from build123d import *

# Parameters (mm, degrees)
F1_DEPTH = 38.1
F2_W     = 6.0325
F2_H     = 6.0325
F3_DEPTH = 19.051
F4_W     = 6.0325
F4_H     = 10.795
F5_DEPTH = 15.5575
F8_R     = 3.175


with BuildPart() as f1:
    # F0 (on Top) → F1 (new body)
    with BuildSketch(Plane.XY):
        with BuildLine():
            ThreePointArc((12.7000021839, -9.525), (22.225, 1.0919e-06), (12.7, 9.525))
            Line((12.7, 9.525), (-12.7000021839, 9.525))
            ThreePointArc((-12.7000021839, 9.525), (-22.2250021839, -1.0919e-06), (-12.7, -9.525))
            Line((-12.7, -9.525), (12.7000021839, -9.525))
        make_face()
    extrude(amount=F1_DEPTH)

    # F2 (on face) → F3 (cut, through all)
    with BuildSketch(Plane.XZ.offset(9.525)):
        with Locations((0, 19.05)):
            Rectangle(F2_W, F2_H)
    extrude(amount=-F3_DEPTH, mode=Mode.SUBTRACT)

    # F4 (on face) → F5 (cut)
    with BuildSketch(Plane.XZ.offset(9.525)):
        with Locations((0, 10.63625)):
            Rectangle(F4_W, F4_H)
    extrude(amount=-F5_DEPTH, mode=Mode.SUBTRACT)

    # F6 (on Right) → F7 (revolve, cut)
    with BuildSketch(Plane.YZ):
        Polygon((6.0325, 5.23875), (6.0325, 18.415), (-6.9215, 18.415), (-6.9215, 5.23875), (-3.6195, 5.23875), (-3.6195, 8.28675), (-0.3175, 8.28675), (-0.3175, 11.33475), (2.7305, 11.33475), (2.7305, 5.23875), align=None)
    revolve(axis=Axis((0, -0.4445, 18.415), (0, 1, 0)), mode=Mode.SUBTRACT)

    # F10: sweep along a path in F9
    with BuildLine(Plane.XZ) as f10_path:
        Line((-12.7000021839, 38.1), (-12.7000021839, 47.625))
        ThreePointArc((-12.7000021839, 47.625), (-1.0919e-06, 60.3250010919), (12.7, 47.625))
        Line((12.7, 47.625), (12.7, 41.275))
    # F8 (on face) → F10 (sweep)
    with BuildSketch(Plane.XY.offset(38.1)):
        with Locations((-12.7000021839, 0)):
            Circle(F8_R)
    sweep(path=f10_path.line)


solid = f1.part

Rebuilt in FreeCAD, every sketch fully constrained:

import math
import FreeCAD as App
import Part
import Sketcher

V = App.Vector
Q = App.Units.Quantity


def add_polygon(sketch, points):
    """Adds a closed chain of lines whose ends are joined by coincident constraints."""
    first, n = sketch.GeometryCount, len(points)
    for a, b in zip(points, points[1:] + points[:1]):
        sketch.addGeometry(Part.LineSegment(App.Vector(*a, 0), App.Vector(*b, 0)), False)
    for i in range(n):
        sketch.addConstraint(Sketcher.Constraint("Coincident", first + i, 2, first + (i + 1) % n, 1))

doc = App.newDocument("Part")
body = doc.addObject("PartDesign::Body", "Body")

# Sketch on XY plane
sketch1 = body.newObject("Sketcher::SketchObject", "Sketch")
sketch1.AttachmentSupport = (doc.getObject("XY_Plane"), [""])
sketch1.MapMode = "FlatFace"
sketch1.addGeometry(Part.ArcOfCircle(Part.Circle(V(13, 0, 0), V(0, 0, 1), 10), math.radians(-90), math.radians(90)), False)
sketch1.addGeometry(Part.LineSegment(V(13, 10, 0), V(-13, 10, 0)), False)
sketch1.addGeometry(Part.ArcOfCircle(Part.Circle(V(-13, 0, 0), V(0, 0, 1), 10), math.radians(90), math.radians(270)), False)
sketch1.addGeometry(Part.LineSegment(V(-13, -10, 0), V(13, -10, 0)), False)
sketch1.addConstraint(Sketcher.Constraint("Tangent", 0, 2, 1, 1))
sketch1.addConstraint(Sketcher.Constraint("Tangent", 1, 2, 2, 1))
sketch1.addConstraint(Sketcher.Constraint("Tangent", 2, 2, 3, 1))
sketch1.addConstraint(Sketcher.Constraint("Tangent", 3, 2, 0, 1))
sketch1.addConstraint(Sketcher.Constraint("Horizontal", 1))
sketch1.addConstraint(Sketcher.Constraint("Horizontal", 3))
sketch1.addConstraint(Sketcher.Constraint("Symmetric", 0, 3, 2, 3, -1, 1))
sketch1.addConstraint(Sketcher.Constraint("DistanceX", 1, 2, 1, 1, Q("1.0000001 in")))
sketch1.addConstraint(Sketcher.Constraint("Radius", 0, Q("0.375 in")))
pad1 = body.newObject("PartDesign::Pad", "Pad")
pad1.Profile = sketch1
pad1.Length = Q("1.5 in")

# Sketch on XZ plane
sketch2 = body.newObject("Sketcher::SketchObject", "Sketch001")
sketch2.AttachmentSupport = (doc.getObject("XZ_Plane"), [""])
sketch2.MapMode = "FlatFace"
sketch2.AttachmentOffset = App.Placement(V(0, 0, 0.375 * 25.4), App.Rotation())
add_polygon(sketch2, [(-3, 22), (-3, 16), (3, 16), (3, 22)])  # lines 0-3
sketch2.addConstraint(Sketcher.Constraint("Vertical", 0))
sketch2.addConstraint(Sketcher.Constraint("Horizontal", 1))
sketch2.addConstraint(Sketcher.Constraint("Vertical", 2))
sketch2.addConstraint(Sketcher.Constraint("Horizontal", 3))
sketch2.addConstraint(Sketcher.Constraint("Equal", 3, 0))
sketch2.addConstraint(Sketcher.Constraint("DistanceX", 1, 1, 1, 2, Q("0.2375 in")))
sketch2.addConstraint(Sketcher.Constraint("DistanceX", 0, 2, -1, 1, 3.01625))
sketch2.addConstraint(Sketcher.Constraint("DistanceY", -1, 1, 0, 2, 16.03375))
pocket1 = body.newObject("PartDesign::Pocket", "Pocket")
pocket1.Profile = sketch2
pocket1.Type = "ThroughAll"

# Sketch on XZ plane
sketch3 = body.newObject("Sketcher::SketchObject", "Sketch002")
sketch3.AttachmentSupport = (doc.getObject("XZ_Plane"), [""])
sketch3.MapMode = "FlatFace"
sketch3.AttachmentOffset = App.Placement(V(0, 0, 0.375 * 25.4), App.Rotation())
add_polygon(sketch3, [(-3, 16), (-3, 5), (3, 5), (3, 16)])  # lines 0-3
sketch3.addConstraint(Sketcher.Constraint("Vertical", 0))
sketch3.addConstraint(Sketcher.Constraint("Horizontal", 1))
sketch3.addConstraint(Sketcher.Constraint("Vertical", 2))
sketch3.addConstraint(Sketcher.Constraint("Horizontal", 3))
sketch3.addConstraint(Sketcher.Constraint("DistanceY", 0, 2, 0, 1, Q("0.425 in")))
sketch3.addConstraint(Sketcher.Constraint("DistanceX", 1, 1, 1, 2, Q("0.2375 in")))
sketch3.addConstraint(Sketcher.Constraint("DistanceX", 0, 2, -1, 1, 3.01625))
sketch3.addConstraint(Sketcher.Constraint("DistanceY", -1, 1, 0, 2, 5.23875))
pocket2 = body.newObject("PartDesign::Pocket", "Pocket001")
pocket2.Profile = sketch3
pocket2.Length = Q("0.6125 in")

# Sketch on YZ plane
sketch4 = body.newObject("Sketcher::SketchObject", "Sketch003")
sketch4.AttachmentSupport = (doc.getObject("YZ_Plane"), [""])
sketch4.MapMode = "FlatFace"
add_polygon(sketch4, [(6, 5.2), (6, 18.4), (-6.9, 18.4), (-6.9, 5.2), (-3.6, 5.2), (-3.6, 8.3), (-0.3, 8.3), (-0.3, 11.3), (2.7, 11.3), (2.7, 5.2)])  # lines 0-9
sketch4.addGeometry(Part.LineSegment(V(-6.9, 18.4, 0), V(6, 18.4, 0)), True)  # axis
sketch4.addConstraint(Sketcher.Constraint("Vertical", 0))
sketch4.addConstraint(Sketcher.Constraint("Horizontal", 1))
sketch4.addConstraint(Sketcher.Constraint("Vertical", 2))
sketch4.addConstraint(Sketcher.Constraint("Horizontal", 3))
sketch4.addConstraint(Sketcher.Constraint("Vertical", 4))
sketch4.addConstraint(Sketcher.Constraint("Horizontal", 5))
sketch4.addConstraint(Sketcher.Constraint("Vertical", 6))
sketch4.addConstraint(Sketcher.Constraint("Horizontal", 7))
sketch4.addConstraint(Sketcher.Constraint("Vertical", 8))
sketch4.addConstraint(Sketcher.Constraint("Horizontal", 9))
sketch4.addConstraint(Sketcher.Constraint("Horizontal", 10))
sketch4.addConstraint(Sketcher.Constraint("Coincident", 10, 1, 1, 2))
sketch4.addConstraint(Sketcher.Constraint("Horizontal", 3, 2, 8, 2))
sketch4.addConstraint(Sketcher.Constraint("Vertical", 9, 2, 10, 2))
sketch4.addConstraint(Sketcher.Constraint("Equal", 3, 5))
sketch4.addConstraint(Sketcher.Constraint("Equal", 5, 9))
sketch4.addConstraint(Sketcher.Constraint("Equal", 7, 4))
sketch4.addConstraint(Sketcher.Constraint("Equal", 4, 6))
sketch4.addConstraint(Sketcher.Constraint("DistanceX", 1, 2, 1, 1, Q("0.51 in")))
sketch4.addConstraint(Sketcher.Constraint("DistanceX", 3, 1, 3, 2, Q("0.13 in")))
sketch4.addConstraint(Sketcher.Constraint("DistanceY", -1, 1, 0, 2, Q("0.725 in")))
sketch4.addConstraint(Sketcher.Constraint("DistanceX", -1, 1, 0, 2, Q("0.2375 in")))
sketch4.addConstraint(Sketcher.Constraint("DistanceY", 0, 1, 0, 2, 13.17625))
groove = body.newObject("PartDesign::Groove", "Groove")
groove.Profile = sketch4
groove.ReferenceAxis = (sketch4, ["Axis0"])
groove.Angle = 360

# Sketch on XY plane
sketch5 = body.newObject("Sketcher::SketchObject", "Sketch004")
sketch5.AttachmentSupport = (doc.getObject("XY_Plane"), [""])
sketch5.MapMode = "FlatFace"
sketch5.AttachmentOffset = App.Placement(V(0, 0, 1.5 * 25.4), App.Rotation())
sketch5.addGeometry(Part.Circle(V(-12.7, 0, 0), V(0, 0, 1), 3.2), False)
sketch5.addConstraint(Sketcher.Constraint("PointOnObject", 0, 3, -1))
sketch5.addConstraint(Sketcher.Constraint("Diameter", 0, Q("0.25 in")))
sketch5.addConstraint(Sketcher.Constraint("DistanceX", 0, 3, -1, 1, Q("0.5000001 in")))

# Sketch on XZ plane
sketch6 = body.newObject("Sketcher::SketchObject", "Sketch005")
sketch6.AttachmentSupport = (doc.getObject("XZ_Plane"), [""])
sketch6.MapMode = "FlatFace"
sketch6.addGeometry(Part.LineSegment(V(-13, 38, 0), V(-13, 48, 0)), False)
sketch6.addGeometry(Part.ArcOfCircle(Part.Circle(V(0, 48, 0), V(0, 0, 1), 13), math.radians(0), math.radians(180)), False)
sketch6.addGeometry(Part.LineSegment(V(13, 48, 0), V(13, 41, 0)), False)
sketch6.addConstraint(Sketcher.Constraint("Tangent", 0, 2, 1, 2))
sketch6.addConstraint(Sketcher.Constraint("Tangent", 1, 1, 2, 1))
sketch6.addConstraint(Sketcher.Constraint("Vertical", 0))
sketch6.addConstraint(Sketcher.Constraint("Vertical", 2))
sketch6.addConstraint(Sketcher.Constraint("PointOnObject", 1, 3, -2))
sketch6.addConstraint(Sketcher.Constraint("Radius", 1, Q("0.5 in")))
sketch6.addConstraint(Sketcher.Constraint("DistanceY", 2, 2, 2, 1, Q("0.25 in")))
sketch6.addConstraint(Sketcher.Constraint("DistanceY", -1, 1, 0, 1, Q("1.5 in")))
sketch6.addConstraint(Sketcher.Constraint("DistanceY", 0, 1, 0, 2, Q("0.375 in")))
doc.recompute()

additivepipe = body.newObject("PartDesign::AdditivePipe", "AdditivePipe")
additivepipe.Profile = sketch5
additivepipe.Spine = (sketch6, ["Edge1", "Edge2", "Edge3"])

doc.recompute()
